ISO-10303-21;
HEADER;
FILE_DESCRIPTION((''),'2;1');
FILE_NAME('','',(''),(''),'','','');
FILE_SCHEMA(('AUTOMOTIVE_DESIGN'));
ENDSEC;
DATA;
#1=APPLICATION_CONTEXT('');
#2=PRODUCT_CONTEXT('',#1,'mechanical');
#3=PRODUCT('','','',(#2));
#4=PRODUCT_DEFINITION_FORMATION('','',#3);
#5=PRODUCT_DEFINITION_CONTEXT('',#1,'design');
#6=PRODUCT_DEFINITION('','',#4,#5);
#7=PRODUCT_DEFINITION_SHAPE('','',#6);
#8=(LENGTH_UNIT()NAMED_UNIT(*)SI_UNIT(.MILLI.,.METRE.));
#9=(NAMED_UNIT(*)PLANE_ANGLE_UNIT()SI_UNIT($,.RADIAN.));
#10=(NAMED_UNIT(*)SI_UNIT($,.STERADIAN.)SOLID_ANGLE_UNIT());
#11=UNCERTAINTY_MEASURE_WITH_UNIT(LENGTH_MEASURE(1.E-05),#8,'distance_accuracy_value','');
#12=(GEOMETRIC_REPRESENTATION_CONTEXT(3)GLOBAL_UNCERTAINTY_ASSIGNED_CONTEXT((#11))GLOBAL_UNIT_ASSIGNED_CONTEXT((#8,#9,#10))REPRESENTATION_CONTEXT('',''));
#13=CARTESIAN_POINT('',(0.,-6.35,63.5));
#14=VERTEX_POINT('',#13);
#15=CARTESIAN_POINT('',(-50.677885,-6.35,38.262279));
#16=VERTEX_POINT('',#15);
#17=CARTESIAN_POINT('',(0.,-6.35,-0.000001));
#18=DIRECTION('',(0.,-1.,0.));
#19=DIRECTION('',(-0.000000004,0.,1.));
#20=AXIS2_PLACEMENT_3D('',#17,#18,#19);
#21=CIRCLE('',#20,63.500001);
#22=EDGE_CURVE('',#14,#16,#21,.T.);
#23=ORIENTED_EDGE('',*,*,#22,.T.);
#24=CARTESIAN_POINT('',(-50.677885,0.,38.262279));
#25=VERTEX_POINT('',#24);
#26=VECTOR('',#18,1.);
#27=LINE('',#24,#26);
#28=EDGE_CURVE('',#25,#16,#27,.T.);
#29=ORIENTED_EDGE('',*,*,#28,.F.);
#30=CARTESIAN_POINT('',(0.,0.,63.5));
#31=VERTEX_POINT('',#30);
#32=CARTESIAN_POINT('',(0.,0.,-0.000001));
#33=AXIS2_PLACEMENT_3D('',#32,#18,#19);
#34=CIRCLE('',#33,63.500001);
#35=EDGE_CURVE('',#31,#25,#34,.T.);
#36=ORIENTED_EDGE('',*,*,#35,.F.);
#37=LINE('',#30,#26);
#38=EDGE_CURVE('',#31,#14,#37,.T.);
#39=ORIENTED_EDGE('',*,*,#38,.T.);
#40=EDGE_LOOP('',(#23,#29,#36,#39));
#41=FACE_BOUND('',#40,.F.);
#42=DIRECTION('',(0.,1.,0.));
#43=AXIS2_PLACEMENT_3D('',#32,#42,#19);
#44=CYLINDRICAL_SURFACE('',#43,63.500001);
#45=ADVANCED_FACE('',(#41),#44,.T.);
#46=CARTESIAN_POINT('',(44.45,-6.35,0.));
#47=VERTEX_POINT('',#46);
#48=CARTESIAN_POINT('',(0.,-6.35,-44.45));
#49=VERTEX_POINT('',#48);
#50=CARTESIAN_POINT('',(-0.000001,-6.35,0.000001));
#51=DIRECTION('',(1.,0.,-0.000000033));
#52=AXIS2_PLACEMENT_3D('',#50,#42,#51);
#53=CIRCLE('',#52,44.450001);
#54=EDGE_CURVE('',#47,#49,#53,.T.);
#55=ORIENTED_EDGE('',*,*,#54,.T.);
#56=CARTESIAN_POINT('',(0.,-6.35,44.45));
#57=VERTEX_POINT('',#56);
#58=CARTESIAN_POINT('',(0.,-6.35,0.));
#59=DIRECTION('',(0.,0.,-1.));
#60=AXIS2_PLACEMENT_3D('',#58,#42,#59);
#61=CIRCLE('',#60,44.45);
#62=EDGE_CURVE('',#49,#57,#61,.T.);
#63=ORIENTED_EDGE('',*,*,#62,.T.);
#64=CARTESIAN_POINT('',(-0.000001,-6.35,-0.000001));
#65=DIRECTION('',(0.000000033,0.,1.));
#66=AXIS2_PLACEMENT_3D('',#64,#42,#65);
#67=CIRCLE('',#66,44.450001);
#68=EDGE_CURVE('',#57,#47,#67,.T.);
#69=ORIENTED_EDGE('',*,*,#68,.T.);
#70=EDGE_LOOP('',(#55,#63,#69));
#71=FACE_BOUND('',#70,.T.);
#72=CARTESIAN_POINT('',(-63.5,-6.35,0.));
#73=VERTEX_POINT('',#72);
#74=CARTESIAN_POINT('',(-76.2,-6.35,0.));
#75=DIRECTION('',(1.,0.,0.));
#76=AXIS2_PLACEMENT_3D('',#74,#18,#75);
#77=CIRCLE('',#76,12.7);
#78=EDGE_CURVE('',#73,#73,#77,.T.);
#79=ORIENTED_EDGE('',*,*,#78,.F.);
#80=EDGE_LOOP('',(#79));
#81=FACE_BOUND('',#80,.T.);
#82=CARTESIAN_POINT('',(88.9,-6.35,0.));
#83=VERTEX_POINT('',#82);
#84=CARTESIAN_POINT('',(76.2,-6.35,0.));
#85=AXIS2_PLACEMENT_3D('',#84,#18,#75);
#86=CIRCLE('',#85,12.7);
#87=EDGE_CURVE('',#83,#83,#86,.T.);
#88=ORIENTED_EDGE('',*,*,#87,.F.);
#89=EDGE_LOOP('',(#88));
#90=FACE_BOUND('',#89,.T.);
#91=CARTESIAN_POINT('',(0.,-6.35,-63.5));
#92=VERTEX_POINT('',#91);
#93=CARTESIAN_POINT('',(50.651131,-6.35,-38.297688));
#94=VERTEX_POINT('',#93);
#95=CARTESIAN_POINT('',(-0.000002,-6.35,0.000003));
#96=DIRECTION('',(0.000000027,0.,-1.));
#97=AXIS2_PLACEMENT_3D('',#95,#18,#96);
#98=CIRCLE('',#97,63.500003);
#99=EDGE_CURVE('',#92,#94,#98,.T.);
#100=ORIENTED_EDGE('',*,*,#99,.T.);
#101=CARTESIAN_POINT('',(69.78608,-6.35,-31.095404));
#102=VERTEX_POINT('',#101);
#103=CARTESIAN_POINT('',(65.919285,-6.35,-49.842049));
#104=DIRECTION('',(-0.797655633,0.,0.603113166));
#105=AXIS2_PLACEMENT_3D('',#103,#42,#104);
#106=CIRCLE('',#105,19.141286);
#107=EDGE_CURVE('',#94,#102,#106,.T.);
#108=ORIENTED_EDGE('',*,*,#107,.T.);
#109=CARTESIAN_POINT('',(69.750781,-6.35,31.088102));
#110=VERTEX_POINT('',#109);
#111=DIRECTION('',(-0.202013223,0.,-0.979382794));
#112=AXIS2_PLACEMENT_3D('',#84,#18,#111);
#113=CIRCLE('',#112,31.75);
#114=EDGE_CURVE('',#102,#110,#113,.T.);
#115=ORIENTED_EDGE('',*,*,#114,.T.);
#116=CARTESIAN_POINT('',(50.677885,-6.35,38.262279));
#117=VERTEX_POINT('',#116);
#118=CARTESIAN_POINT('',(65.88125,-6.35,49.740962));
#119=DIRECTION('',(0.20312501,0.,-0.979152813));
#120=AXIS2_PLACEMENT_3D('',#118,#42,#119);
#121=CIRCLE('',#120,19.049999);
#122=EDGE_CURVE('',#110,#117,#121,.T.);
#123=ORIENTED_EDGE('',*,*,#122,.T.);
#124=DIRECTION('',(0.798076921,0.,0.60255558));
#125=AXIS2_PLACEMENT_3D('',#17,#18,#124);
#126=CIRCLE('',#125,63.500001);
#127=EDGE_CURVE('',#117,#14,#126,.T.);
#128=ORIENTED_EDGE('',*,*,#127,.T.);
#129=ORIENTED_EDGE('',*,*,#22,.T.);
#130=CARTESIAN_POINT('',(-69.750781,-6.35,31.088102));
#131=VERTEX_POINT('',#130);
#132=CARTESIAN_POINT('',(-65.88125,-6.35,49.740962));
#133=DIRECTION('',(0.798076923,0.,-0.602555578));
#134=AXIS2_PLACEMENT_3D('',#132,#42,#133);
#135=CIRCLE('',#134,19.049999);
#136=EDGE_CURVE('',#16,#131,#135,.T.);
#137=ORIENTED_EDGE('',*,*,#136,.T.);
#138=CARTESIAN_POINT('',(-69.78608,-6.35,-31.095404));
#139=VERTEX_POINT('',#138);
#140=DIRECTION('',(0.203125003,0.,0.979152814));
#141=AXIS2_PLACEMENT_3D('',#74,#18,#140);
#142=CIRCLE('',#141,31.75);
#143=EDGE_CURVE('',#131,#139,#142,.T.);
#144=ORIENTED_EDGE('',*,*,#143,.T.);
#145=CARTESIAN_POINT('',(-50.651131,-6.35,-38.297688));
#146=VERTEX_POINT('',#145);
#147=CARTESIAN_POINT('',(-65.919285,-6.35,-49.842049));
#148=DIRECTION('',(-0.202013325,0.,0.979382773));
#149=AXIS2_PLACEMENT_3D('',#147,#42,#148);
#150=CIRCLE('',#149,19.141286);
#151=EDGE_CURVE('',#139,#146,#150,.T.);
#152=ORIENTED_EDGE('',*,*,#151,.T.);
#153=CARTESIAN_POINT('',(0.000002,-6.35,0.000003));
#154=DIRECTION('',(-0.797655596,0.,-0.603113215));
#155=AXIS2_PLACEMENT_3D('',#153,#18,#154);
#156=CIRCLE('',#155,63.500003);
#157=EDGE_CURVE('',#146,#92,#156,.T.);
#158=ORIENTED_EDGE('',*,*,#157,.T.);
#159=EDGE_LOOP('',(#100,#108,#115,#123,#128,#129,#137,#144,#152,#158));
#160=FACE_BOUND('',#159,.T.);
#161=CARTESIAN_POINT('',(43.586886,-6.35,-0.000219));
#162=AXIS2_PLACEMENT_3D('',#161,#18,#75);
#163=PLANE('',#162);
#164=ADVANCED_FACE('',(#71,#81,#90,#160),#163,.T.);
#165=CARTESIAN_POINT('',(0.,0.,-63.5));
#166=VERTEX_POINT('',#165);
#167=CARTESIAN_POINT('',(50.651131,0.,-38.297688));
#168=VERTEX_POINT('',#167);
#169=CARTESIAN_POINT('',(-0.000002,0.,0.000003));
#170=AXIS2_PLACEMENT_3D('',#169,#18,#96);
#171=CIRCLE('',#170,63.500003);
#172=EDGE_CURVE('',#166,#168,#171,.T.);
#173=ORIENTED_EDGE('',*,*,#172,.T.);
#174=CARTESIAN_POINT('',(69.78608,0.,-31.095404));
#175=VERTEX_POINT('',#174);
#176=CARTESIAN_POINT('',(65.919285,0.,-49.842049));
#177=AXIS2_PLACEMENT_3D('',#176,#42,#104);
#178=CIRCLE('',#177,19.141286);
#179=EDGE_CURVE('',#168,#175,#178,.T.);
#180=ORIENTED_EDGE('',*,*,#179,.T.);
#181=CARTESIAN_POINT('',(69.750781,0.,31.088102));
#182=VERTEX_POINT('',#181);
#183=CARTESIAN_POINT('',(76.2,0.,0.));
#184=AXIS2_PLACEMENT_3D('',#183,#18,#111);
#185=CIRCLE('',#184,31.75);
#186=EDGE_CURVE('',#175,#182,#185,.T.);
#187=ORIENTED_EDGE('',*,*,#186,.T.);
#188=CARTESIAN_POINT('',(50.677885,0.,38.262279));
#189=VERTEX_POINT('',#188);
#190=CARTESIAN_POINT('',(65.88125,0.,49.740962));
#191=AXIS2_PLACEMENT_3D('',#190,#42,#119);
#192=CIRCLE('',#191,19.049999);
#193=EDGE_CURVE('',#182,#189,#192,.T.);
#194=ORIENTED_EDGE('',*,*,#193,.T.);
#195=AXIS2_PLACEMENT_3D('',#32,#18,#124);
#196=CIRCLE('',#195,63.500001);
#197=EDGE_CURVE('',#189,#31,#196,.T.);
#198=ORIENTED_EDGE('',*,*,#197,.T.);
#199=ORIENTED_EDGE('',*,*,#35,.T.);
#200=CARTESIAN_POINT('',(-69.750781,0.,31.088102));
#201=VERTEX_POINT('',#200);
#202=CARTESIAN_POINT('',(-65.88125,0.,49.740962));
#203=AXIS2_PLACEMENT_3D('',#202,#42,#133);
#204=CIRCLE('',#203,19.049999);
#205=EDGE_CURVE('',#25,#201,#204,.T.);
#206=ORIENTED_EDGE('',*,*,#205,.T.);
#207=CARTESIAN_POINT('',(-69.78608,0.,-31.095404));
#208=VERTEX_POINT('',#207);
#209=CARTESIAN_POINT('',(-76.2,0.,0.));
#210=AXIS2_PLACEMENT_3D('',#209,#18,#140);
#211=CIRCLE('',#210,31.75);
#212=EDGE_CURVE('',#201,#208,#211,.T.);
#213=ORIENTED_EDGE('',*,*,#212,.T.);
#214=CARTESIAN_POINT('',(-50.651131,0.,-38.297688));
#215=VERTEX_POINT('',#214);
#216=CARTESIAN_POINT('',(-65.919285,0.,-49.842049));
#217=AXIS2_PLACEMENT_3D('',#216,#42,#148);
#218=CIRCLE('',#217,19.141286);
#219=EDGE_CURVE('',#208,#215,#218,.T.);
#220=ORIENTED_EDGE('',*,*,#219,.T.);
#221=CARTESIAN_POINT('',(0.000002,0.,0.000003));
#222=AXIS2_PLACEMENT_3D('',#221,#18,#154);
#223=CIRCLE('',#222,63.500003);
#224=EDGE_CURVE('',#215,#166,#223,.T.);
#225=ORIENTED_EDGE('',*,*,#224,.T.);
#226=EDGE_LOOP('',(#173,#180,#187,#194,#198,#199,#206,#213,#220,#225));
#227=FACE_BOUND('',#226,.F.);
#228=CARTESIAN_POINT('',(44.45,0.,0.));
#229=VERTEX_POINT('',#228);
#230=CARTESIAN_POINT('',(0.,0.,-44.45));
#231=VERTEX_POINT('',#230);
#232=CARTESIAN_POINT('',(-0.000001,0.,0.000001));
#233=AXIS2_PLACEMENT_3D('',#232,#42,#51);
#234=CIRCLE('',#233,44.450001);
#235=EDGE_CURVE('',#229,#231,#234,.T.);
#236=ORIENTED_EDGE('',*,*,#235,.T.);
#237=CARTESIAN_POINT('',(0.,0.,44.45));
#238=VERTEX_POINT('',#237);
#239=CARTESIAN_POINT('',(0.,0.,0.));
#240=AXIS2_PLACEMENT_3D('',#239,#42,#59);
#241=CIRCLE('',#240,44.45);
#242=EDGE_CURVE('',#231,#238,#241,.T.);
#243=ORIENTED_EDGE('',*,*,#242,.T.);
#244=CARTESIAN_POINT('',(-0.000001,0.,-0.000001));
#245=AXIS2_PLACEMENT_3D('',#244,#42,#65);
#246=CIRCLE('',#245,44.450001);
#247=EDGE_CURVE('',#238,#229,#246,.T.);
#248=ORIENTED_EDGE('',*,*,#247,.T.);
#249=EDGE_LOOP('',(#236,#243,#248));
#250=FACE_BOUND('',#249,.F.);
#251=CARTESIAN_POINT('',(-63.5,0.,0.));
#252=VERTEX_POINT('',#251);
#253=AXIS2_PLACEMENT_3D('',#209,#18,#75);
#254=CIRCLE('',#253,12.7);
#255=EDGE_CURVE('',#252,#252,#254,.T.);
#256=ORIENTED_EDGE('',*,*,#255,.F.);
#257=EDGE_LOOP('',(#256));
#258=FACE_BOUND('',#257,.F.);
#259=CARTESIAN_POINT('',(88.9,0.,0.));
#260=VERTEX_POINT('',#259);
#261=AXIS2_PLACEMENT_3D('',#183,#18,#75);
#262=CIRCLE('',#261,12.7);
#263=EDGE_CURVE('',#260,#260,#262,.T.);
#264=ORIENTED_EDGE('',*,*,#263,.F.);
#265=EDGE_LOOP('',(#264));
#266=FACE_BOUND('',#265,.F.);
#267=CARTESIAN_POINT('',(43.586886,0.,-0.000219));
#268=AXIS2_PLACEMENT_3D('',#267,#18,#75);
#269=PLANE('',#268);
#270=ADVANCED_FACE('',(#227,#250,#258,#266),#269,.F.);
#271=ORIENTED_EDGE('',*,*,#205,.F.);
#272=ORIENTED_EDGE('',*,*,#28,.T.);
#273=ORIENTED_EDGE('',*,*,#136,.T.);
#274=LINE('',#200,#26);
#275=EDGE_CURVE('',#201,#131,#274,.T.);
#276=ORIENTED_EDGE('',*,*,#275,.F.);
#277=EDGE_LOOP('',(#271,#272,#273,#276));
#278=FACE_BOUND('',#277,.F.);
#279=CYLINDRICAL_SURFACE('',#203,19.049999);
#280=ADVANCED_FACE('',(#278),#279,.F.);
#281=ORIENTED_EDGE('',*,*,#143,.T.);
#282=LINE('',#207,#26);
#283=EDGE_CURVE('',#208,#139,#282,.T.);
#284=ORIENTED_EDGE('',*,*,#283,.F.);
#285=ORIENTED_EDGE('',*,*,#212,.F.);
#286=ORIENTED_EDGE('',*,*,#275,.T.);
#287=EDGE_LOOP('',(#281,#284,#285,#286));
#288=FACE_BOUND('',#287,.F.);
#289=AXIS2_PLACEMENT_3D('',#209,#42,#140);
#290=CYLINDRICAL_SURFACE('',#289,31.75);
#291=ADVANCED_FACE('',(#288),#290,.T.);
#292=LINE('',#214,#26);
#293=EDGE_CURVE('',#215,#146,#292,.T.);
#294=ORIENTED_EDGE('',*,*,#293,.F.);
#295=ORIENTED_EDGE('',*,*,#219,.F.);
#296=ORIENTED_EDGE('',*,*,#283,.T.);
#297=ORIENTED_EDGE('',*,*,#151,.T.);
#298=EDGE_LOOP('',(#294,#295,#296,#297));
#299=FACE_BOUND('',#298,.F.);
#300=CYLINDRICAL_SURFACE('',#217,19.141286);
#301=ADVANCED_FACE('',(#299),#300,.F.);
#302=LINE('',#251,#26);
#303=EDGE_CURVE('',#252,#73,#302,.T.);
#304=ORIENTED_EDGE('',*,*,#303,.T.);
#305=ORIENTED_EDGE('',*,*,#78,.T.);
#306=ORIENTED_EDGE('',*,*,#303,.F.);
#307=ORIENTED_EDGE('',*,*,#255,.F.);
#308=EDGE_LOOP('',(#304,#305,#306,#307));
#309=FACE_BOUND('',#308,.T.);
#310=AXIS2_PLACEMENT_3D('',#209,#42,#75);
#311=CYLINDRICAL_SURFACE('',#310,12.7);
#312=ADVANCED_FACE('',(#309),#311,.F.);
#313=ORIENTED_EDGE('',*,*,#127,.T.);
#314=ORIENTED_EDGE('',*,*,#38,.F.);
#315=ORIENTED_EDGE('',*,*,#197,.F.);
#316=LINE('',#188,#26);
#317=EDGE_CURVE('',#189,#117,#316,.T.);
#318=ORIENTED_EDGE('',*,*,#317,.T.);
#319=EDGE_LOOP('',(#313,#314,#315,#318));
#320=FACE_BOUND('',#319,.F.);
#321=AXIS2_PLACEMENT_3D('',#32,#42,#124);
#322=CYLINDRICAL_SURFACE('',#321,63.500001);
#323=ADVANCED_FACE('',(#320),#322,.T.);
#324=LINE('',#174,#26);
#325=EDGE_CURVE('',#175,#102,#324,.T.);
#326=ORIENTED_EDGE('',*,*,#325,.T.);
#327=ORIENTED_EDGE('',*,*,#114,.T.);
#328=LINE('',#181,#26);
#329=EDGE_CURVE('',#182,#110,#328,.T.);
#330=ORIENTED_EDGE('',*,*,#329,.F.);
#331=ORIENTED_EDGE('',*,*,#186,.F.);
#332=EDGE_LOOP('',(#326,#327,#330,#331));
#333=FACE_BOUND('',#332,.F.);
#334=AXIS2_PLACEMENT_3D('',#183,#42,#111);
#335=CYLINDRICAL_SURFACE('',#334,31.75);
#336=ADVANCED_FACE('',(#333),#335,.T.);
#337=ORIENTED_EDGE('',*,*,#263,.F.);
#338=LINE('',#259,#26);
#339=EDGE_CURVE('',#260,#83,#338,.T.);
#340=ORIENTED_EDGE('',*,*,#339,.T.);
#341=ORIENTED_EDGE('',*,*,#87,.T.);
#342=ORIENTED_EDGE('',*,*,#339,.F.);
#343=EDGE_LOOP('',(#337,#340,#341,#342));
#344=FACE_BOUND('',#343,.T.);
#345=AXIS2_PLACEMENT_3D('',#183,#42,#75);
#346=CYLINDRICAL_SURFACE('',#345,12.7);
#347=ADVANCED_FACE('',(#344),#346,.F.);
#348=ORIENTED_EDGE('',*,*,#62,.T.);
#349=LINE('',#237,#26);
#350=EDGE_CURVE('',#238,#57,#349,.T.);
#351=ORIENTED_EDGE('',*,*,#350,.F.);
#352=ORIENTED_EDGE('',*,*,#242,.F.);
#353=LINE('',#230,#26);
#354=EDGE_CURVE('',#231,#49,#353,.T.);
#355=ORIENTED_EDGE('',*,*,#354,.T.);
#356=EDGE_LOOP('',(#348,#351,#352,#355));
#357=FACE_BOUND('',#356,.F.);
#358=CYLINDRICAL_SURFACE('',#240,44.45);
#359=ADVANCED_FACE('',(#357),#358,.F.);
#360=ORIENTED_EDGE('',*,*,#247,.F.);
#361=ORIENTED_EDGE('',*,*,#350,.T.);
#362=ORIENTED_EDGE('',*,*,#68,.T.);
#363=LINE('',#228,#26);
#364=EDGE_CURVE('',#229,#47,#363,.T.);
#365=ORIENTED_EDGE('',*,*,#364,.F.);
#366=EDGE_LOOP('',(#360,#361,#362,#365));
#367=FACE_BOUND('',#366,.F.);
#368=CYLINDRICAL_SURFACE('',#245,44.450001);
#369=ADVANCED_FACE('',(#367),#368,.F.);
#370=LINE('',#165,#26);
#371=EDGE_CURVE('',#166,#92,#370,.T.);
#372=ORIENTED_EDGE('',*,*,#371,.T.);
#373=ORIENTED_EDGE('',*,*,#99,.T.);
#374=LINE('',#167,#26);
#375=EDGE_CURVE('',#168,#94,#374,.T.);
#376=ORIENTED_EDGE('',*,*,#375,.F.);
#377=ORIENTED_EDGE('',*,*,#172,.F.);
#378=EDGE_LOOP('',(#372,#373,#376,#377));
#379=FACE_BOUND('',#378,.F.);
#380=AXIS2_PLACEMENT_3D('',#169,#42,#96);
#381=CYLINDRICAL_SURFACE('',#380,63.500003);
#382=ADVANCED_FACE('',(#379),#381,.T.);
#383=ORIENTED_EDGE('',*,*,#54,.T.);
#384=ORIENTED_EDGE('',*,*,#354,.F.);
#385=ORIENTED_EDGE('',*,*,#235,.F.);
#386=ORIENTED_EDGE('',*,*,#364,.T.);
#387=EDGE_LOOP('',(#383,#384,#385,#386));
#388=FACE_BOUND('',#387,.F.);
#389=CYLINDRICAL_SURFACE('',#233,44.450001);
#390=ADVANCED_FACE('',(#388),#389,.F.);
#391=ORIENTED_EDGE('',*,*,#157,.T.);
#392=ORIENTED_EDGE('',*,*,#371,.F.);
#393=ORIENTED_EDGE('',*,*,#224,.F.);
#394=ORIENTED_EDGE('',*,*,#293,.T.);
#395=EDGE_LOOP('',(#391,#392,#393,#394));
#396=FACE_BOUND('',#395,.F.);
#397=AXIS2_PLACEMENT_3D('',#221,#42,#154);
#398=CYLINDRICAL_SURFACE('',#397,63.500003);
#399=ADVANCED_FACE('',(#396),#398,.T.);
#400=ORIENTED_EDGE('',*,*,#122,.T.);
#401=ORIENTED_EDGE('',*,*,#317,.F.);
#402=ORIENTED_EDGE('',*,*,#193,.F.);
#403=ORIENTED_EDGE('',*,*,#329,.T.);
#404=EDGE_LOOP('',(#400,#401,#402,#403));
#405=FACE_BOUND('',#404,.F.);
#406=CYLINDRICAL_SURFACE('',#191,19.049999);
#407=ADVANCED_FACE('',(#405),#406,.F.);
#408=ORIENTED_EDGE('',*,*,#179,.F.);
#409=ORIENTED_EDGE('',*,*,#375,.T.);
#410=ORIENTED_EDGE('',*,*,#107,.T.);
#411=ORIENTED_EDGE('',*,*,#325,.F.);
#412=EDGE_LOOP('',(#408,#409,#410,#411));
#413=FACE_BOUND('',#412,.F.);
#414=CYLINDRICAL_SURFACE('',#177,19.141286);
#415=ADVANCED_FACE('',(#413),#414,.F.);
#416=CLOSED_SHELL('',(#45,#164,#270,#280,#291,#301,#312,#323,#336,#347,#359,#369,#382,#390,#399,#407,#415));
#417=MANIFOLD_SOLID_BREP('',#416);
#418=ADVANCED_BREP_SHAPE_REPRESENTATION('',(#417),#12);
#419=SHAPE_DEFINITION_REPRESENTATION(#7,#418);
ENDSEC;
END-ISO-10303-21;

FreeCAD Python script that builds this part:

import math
import FreeCAD as App
import Part
import Sketcher
Q = App.Units.Quantity

doc = App.newDocument("Part")
params = doc.addObject("Spreadsheet::Sheet", "Params")
for row, (alias, value) in enumerate([
    ("sketch1_diameter", "1 in"),
    ("sketch1_radius", "2.5 in"),
    ("sketch1_radius2", "0.75 in"),
    ("sketch1_radius3", "1.25 in"),
    ("sketch1_radius4", "1.7500001 in"),
    ("pad1_length", "0.25 in"),
], start=1):
    params.set(f"A{row}", alias)
    params.set(f"B{row}", "=" + value)
    params.setAlias(f"B{row}", alias)

body = doc.addObject("PartDesign::Body", "Body")

# Sketch on XZ plane
sketch1 = body.newObject("Sketcher::SketchObject", "Sketch")
sketch1.AttachmentSupport = (doc.getObject("XZ_Plane"), [""])
sketch1.MapMode = "FlatFace"
sketch1.addGeometry([
    Part.ArcOfCircle(Part.Circle(App.Vector(0, -0.000001, 0), App.Vector(0, 0, 1), 63.500001), math.radians(37.053148), math.radians(90)),  # 0
    Part.ArcOfCircle(Part.Circle(App.Vector(0, -0.000001, 0), App.Vector(0, 0, 1), 63.500001), math.radians(90), math.radians(142.946852)),  # 1
    Part.ArcOfCircle(Part.Circle(App.Vector(-65.88125, 49.740962, 0), App.Vector(0, 0, 1), 19.049999), math.radians(-101.719761), math.radians(-37.053148)),  # 2
    Part.ArcOfCircle(Part.Circle(App.Vector(-76.2, 0, 0), App.Vector(0, 0, 1), 31.75), math.radians(78.28024), math.radians(281.654712)),  # 3
    Part.ArcOfCircle(Part.Circle(App.Vector(-65.919285, -49.842049, 0), App.Vector(0, 0, 1), 19.141286), math.radians(37.093189), math.radians(101.654718)),  # 4
    Part.ArcOfCircle(Part.Circle(App.Vector(0.000002, 0.000003, 0), App.Vector(0, 0, 1), 63.500003), math.radians(-142.906808), math.radians(-90.000002)),  # 5
    Part.ArcOfCircle(Part.Circle(App.Vector(-0.000002, 0.000003, 0), App.Vector(0, 0, 1), 63.500003), math.radians(-89.999998), math.radians(-37.093192)),  # 6
    Part.ArcOfCircle(Part.Circle(App.Vector(65.919285, -49.842049, 0), App.Vector(0, 0, 1), 19.141286), math.radians(78.345282), math.radians(142.906811)),  # 7
    Part.ArcOfCircle(Part.Circle(App.Vector(76.2, 0, 0), App.Vector(0, 0, 1), 31.75), math.radians(-101.654712), math.radians(101.71976)),  # 8
    Part.ArcOfCircle(Part.Circle(App.Vector(65.88125, 49.740962, 0), App.Vector(0, 0, 1), 19.049999), math.radians(-142.946852), math.radians(-78.280239)),  # 9
    Part.Circle(App.Vector(-76.2, 0, 0), App.Vector(0, 0, 1), 12.7),  # 10
    Part.ArcOfCircle(Part.Circle(App.Vector(-0.000001, -0.000001, 0), App.Vector(0, 0, 1), 44.450001), math.radians(0.000002), math.radians(89.999998)),  # 11
    Part.ArcOfCircle(Part.Circle(App.Vector(-0.000001, 0.000001, 0), App.Vector(0, 0, 1), 44.450001), math.radians(-89.999998), math.radians(-0.000002)),  # 12
    Part.ArcOfCircle(Part.Circle(App.Vector(0, 0, 0), App.Vector(0, 0, 1), 44.45), math.radians(90), math.radians(270)),  # 13
    Part.Circle(App.Vector(76.2, 0, 0), App.Vector(0, 0, 1), 12.7),  # 14
], False)
sketch1.addConstraint([
    Sketcher.Constraint("Tangent", 0, 2, 1, 1),
    Sketcher.Constraint("Tangent", 1, 2, 2, 2),
    Sketcher.Constraint("Tangent", 2, 1, 3, 1),
    Sketcher.Constraint("Tangent", 3, 2, 4, 2),
    Sketcher.Constraint("Tangent", 4, 1, 5, 1),
    Sketcher.Constraint("Tangent", 5, 2, 6, 1),
    Sketcher.Constraint("Tangent", 6, 2, 7, 2),
    Sketcher.Constraint("Tangent", 7, 1, 8, 1),
    Sketcher.Constraint("Tangent", 8, 2, 9, 2),
    Sketcher.Constraint("Tangent", 9, 1, 0, 1),
    Sketcher.Constraint("Tangent", 11, 1, 12, 2),
    Sketcher.Constraint("Tangent", 12, 1, 13, 2),
    Sketcher.Constraint("Tangent", 13, 1, 11, 2),
    Sketcher.Constraint("Coincident", 0, 3, -1, 1),
    Sketcher.Constraint("Coincident", 5, 3, -1, 1),
    Sketcher.Constraint("Coincident", 11, 3, -1, 1),
    Sketcher.Constraint("Coincident", 10, 3, 3, 3),
    Sketcher.Constraint("Coincident", 14, 3, 8, 3),
    Sketcher.Constraint("Equal", 0, 1),
    Sketcher.Constraint("Equal", 5, 6),
    Sketcher.Constraint("Equal", 4, 7),
    Sketcher.Constraint("Equal", 3, 8),
    Sketcher.Constraint("Equal", 2, 9),
    Sketcher.Constraint("Equal", 10, 14),
    Sketcher.Constraint("Symmetric", 3, 3, 8, 3, -1, 1),
    Sketcher.Constraint("Symmetric", 0, 2, 5, 2, -1, 1),
    Sketcher.Constraint("PointOnObject", 3, 3, -1),
    Sketcher.Constraint("PointOnObject", 0, 2, -2),
    Sketcher.Constraint("PointOnObject", 11, 1, -1),
    Sketcher.Constraint("PointOnObject", 12, 1, -2),
    Sketcher.Constraint("PointOnObject", 13, 1, -2),
    Sketcher.Constraint("Diameter", 10, Q("1 in")),
    Sketcher.Constraint("Radius", 0, Q("2.5 in")),
    Sketcher.Constraint("Radius", 2, Q("0.75 in")),
    Sketcher.Constraint("Radius", 3, Q("1.25 in")),
    Sketcher.Constraint("Radius", 11, Q("1.7500001 in")),
    Sketcher.Constraint("DistanceX", 3, 3, -1, 1, Q("3 in")),
    Sketcher.Constraint("Radius", 4, 19.141286),
])
sketch1.setExpression("Constraints[31]", "Params.sketch1_diameter")
sketch1.setExpression("Constraints[32]", "Params.sketch1_radius")
sketch1.setExpression("Constraints[33]", "Params.sketch1_radius2")
sketch1.setExpression("Constraints[34]", "Params.sketch1_radius3")
sketch1.setExpression("Constraints[35]", "Params.sketch1_radius4")
pad1 = body.newObject("PartDesign::Pad", "Pad")
pad1.Profile = sketch1
pad1.setExpression("Length", "Params.pad1_length")

doc.recompute()
